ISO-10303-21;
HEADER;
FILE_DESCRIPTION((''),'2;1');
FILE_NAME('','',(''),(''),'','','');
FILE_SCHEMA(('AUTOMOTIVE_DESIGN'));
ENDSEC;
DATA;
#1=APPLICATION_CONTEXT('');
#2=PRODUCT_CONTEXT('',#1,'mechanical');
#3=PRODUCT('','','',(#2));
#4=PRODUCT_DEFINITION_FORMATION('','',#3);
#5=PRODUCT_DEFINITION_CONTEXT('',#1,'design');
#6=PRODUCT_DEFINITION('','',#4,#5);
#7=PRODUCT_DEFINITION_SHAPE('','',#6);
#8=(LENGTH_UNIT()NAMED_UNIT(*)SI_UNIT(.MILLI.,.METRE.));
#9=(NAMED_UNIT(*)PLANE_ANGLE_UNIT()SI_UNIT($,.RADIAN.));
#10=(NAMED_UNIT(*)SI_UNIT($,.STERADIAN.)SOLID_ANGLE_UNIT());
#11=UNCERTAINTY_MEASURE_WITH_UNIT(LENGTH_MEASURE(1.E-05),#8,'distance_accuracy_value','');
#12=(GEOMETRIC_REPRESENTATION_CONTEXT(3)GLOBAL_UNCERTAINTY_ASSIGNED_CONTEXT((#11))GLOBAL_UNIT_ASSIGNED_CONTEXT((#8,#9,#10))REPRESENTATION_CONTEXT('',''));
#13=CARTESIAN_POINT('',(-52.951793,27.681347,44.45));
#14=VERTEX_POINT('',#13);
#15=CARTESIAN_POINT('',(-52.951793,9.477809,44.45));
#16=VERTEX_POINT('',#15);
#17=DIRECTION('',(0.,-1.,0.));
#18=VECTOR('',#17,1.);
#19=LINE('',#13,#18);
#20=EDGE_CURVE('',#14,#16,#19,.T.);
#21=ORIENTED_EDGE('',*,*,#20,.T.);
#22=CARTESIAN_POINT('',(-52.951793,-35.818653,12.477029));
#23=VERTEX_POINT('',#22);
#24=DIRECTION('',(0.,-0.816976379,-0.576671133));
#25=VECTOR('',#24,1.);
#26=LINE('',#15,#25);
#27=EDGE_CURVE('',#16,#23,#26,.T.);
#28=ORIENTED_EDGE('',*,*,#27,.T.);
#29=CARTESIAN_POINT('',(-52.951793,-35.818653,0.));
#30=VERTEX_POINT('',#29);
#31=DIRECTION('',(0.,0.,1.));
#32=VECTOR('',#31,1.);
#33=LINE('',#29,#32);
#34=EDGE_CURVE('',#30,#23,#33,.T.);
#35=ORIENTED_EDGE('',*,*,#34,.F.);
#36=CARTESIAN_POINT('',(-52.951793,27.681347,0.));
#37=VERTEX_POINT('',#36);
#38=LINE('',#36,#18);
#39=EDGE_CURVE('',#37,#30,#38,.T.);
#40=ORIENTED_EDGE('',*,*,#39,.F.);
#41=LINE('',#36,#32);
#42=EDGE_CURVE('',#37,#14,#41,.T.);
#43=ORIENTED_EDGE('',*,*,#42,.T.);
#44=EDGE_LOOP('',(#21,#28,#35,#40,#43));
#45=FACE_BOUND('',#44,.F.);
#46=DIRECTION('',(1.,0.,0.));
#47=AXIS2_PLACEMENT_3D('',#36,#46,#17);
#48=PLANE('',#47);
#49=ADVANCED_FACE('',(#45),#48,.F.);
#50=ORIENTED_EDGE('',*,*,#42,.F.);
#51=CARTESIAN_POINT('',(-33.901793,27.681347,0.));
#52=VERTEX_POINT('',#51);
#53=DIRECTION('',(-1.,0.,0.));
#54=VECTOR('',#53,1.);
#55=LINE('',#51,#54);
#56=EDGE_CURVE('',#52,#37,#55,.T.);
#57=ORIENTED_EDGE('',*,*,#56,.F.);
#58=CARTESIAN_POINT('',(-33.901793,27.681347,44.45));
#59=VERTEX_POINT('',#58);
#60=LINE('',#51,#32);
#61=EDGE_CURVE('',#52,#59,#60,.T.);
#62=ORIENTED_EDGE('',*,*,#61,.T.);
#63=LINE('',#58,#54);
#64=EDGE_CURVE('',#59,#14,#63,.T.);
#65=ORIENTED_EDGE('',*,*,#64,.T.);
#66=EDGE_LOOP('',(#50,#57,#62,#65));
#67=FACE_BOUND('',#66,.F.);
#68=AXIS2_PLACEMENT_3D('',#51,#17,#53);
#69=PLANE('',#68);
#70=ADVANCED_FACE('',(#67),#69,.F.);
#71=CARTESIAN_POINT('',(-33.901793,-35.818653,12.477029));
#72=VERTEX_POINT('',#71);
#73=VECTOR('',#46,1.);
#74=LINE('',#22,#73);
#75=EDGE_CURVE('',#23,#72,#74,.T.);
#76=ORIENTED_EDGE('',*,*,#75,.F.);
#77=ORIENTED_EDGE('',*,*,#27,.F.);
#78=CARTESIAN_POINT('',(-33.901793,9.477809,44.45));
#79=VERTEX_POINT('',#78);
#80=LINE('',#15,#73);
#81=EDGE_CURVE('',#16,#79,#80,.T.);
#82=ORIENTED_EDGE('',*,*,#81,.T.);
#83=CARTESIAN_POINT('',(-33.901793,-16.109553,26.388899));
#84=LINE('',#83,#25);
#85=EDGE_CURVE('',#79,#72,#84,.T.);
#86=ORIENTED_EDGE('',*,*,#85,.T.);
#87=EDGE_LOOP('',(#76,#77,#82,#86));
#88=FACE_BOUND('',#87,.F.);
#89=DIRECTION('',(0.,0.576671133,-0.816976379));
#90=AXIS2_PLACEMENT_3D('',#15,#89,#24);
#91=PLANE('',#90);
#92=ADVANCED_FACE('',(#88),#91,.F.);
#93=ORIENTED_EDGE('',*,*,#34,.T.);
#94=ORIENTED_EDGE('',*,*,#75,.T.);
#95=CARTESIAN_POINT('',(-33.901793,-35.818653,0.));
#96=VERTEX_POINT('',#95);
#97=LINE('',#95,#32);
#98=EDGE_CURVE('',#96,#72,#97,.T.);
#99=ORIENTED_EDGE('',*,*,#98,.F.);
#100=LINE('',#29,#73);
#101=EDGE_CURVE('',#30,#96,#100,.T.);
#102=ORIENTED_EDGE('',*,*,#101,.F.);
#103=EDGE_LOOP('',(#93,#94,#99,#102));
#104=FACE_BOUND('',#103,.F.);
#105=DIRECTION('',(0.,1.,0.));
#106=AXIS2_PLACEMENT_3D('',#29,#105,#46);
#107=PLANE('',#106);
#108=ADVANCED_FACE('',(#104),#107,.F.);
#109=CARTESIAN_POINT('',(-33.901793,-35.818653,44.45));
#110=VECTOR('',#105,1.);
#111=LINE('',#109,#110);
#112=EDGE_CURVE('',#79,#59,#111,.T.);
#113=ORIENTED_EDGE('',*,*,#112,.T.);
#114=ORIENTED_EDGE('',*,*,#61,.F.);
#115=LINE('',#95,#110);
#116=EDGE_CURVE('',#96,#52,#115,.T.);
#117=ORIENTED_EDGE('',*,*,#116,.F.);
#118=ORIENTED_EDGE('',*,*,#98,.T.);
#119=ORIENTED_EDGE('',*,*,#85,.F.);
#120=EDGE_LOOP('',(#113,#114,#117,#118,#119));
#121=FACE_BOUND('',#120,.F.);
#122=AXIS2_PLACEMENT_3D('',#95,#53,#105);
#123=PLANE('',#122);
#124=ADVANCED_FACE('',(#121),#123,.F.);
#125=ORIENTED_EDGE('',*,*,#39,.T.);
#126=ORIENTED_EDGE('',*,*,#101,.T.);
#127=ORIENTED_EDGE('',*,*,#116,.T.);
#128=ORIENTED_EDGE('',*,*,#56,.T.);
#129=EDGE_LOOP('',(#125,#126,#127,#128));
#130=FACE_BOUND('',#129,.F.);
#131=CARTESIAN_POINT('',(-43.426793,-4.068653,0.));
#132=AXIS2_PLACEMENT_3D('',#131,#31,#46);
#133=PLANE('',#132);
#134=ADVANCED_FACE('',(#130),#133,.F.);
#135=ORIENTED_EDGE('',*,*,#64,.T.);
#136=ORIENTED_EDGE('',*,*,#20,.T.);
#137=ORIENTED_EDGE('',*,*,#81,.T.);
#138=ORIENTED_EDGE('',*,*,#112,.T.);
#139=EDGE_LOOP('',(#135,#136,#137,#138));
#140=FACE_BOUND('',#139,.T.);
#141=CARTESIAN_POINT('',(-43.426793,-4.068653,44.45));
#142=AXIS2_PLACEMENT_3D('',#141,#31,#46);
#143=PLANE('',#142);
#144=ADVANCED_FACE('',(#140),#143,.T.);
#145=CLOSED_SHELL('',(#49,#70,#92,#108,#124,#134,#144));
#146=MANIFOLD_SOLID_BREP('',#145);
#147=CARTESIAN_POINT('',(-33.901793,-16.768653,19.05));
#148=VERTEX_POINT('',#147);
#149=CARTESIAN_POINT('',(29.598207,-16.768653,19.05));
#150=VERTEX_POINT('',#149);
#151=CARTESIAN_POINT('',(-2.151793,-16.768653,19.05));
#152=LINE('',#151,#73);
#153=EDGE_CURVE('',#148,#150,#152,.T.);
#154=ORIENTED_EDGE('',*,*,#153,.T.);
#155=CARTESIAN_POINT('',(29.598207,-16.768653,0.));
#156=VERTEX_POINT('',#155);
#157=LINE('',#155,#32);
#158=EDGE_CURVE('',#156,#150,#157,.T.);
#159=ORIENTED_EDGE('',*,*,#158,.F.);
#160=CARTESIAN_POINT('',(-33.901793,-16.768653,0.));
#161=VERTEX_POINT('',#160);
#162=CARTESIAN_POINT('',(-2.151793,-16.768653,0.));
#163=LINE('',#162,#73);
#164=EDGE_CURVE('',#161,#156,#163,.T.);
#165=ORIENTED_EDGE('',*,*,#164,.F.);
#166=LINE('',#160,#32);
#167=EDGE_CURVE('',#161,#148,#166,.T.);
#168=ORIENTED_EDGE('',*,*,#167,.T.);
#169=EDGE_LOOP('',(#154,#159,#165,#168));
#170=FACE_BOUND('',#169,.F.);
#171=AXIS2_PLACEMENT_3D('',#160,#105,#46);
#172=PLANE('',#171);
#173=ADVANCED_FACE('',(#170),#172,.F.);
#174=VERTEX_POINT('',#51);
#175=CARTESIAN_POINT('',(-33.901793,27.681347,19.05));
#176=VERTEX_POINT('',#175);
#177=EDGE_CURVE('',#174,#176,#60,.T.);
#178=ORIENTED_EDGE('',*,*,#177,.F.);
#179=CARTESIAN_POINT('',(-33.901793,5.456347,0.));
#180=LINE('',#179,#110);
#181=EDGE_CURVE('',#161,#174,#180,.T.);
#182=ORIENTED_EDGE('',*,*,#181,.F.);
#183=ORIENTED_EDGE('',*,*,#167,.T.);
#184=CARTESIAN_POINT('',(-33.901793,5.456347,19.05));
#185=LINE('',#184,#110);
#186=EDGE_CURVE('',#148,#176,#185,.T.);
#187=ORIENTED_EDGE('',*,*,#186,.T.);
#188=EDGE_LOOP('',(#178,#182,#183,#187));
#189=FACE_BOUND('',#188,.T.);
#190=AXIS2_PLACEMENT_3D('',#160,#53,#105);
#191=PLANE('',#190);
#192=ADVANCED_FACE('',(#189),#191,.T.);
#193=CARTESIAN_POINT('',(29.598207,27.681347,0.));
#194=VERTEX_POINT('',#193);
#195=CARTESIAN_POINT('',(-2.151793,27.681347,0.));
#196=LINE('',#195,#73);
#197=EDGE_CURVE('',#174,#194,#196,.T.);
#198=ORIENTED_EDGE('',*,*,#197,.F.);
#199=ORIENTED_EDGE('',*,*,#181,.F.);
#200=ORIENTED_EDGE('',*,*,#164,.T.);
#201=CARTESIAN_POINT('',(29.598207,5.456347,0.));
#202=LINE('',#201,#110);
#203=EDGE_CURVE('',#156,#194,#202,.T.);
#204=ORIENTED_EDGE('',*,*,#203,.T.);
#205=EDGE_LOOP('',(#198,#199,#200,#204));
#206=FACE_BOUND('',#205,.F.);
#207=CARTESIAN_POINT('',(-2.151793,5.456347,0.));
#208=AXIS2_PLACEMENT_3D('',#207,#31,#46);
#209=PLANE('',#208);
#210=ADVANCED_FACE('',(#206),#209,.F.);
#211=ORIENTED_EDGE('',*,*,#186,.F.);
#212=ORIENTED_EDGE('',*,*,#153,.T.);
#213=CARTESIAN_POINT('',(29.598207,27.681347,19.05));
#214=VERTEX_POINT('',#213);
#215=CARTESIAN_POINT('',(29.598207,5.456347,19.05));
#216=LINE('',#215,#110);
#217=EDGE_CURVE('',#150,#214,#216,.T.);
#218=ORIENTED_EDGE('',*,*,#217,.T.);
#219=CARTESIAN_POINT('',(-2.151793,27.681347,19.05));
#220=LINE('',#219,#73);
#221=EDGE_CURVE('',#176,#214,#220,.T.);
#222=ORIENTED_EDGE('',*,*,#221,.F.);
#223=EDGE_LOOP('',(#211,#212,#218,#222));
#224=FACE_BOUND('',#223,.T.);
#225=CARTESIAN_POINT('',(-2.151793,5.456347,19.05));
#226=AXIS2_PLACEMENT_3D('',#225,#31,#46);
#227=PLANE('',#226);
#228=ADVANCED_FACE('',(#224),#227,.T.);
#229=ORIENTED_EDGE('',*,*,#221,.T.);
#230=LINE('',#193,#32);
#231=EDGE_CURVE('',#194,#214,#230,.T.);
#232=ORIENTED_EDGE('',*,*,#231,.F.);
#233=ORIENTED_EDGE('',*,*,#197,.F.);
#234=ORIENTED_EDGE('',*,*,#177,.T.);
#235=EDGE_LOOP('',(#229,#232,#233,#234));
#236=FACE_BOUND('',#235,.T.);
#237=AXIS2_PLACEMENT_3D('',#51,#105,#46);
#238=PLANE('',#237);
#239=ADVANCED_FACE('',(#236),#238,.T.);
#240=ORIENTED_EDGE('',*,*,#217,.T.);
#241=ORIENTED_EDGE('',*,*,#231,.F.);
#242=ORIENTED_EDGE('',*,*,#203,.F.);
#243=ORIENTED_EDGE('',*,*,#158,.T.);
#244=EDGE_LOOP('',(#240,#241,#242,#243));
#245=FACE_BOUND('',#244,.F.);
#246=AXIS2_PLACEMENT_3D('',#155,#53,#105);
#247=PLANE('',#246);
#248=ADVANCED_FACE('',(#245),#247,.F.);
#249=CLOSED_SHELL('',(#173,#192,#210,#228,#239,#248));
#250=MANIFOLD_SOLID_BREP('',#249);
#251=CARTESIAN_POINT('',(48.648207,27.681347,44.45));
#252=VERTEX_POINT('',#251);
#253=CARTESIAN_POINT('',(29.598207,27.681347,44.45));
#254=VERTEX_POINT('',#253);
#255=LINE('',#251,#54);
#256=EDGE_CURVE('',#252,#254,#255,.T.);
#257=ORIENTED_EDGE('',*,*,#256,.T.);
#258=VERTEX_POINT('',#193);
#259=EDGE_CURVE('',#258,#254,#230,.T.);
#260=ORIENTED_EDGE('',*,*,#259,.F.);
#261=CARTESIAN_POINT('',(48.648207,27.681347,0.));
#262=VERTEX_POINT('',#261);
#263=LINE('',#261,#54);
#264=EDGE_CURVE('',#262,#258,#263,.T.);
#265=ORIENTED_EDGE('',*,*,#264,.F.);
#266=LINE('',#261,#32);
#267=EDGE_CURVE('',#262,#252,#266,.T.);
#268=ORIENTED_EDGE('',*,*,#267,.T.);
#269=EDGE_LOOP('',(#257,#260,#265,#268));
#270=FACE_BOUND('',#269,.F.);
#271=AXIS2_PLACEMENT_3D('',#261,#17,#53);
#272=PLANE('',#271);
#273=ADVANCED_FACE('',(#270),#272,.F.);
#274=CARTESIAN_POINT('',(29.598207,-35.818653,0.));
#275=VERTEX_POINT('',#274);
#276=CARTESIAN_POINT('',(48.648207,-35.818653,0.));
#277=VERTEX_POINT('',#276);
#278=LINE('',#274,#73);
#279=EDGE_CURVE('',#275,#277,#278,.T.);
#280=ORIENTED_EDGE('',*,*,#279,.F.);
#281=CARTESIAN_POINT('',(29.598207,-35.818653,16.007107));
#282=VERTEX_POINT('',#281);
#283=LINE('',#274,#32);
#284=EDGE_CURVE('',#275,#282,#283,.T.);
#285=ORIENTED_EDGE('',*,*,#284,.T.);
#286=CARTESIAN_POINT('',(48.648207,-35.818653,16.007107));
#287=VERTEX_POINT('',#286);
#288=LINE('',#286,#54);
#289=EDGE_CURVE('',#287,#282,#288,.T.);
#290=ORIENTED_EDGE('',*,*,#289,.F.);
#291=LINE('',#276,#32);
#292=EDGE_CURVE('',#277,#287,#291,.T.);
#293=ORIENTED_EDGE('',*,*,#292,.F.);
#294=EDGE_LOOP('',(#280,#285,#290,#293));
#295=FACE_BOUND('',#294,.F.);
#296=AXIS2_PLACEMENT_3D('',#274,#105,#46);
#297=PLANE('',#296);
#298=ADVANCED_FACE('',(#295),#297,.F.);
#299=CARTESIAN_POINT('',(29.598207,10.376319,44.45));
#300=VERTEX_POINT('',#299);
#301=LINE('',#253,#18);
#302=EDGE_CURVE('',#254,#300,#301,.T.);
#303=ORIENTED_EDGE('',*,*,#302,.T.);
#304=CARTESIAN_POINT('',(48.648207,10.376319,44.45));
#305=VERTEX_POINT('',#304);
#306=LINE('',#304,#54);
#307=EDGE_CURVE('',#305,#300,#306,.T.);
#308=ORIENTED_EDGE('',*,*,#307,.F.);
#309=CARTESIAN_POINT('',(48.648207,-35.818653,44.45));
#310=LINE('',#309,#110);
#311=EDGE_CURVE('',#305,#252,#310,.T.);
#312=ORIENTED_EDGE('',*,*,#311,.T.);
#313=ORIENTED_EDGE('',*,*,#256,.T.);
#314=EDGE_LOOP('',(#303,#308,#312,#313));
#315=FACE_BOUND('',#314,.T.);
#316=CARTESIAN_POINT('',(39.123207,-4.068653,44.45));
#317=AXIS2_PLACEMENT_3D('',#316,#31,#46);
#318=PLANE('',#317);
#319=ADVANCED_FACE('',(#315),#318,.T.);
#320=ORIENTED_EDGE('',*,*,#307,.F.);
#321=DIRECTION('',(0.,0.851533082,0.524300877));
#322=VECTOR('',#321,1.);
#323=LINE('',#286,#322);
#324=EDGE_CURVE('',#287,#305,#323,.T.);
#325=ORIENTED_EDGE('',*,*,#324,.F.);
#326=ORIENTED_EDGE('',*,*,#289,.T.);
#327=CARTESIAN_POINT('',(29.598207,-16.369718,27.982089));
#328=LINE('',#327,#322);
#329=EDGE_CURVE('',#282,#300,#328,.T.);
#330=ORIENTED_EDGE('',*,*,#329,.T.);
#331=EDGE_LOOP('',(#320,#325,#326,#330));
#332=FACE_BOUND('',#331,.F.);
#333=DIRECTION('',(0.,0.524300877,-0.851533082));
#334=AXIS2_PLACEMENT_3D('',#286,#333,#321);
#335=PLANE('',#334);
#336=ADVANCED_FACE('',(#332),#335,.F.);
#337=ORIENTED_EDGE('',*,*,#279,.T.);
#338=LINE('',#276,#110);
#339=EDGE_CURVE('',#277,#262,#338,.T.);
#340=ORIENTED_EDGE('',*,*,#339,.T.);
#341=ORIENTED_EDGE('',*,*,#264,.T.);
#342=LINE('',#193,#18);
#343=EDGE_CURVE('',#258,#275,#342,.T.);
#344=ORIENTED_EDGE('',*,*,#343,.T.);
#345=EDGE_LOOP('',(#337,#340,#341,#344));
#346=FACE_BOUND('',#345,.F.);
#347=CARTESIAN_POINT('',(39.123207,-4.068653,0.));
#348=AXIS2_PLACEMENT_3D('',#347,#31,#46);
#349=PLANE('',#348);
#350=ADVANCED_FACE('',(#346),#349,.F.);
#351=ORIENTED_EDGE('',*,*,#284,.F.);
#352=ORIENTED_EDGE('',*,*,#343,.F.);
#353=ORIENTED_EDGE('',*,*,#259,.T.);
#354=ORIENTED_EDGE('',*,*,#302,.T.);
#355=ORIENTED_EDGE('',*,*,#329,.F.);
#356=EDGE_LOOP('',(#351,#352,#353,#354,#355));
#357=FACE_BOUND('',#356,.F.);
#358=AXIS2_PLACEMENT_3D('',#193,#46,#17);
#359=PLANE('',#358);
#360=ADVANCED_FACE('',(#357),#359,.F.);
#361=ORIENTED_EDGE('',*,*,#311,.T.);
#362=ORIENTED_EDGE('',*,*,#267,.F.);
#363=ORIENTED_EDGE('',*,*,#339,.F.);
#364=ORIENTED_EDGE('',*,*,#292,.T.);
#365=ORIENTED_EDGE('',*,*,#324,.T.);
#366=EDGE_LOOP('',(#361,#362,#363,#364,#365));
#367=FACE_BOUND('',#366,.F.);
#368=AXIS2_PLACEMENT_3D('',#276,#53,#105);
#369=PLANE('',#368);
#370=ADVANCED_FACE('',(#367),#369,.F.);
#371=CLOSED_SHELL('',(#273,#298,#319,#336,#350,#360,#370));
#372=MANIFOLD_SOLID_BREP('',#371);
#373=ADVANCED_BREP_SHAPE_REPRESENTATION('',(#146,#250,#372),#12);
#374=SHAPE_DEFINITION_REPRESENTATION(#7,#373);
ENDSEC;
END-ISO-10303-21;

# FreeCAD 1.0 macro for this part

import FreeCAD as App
import Part
import Sketcher
from FreeCAD import Vector
Q = App.Units.Quantity

doc = App.newDocument("Part")
body = doc.addObject("PartDesign::Body", "Body")
body.AllowCompound = True

sketch1 = body.newObject("Sketcher::SketchObject", "Sketch")
sketch1.AttachmentSupport = (doc.getObject("XY_Plane"), [""])
sketch1.MapMode = "FlatFace"
sketch1.addGeometry([
    Part.LineSegment(Vector(49, 28, 0), Vector(30, 28, 0)),
    Part.LineSegment(Vector(30, 28, 0), Vector(30, -36, 0)),
    Part.LineSegment(Vector(30, -36, 0), Vector(49, -36, 0)),
    Part.LineSegment(Vector(49, -36, 0), Vector(49, 28, 0)),
    Part.LineSegment(Vector(-34, 28, 0), Vector(-53, 28, 0)),
    Part.LineSegment(Vector(-53, 28, 0), Vector(-53, -36, 0)),
    Part.LineSegment(Vector(-53, -36, 0), Vector(-34, -36, 0)),
    Part.LineSegment(Vector(-34, -36, 0), Vector(-34, 28, 0)),
], False)
sketch1.addConstraint([
    Sketcher.Constraint("Coincident", 0, 2, 1, 1),
    Sketcher.Constraint("Coincident", 1, 2, 2, 1),
    Sketcher.Constraint("Coincident", 2, 2, 3, 1),
    Sketcher.Constraint("Coincident", 3, 2, 0, 1),
    Sketcher.Constraint("Coincident", 4, 2, 5, 1),
    Sketcher.Constraint("Coincident", 5, 2, 6, 1),
    Sketcher.Constraint("Coincident", 6, 2, 7, 1),
    Sketcher.Constraint("Coincident", 7, 2, 4, 1),
    Sketcher.Constraint("Horizontal", 0),
    Sketcher.Constraint("Vertical", 1),
    Sketcher.Constraint("Horizontal", 2),
    Sketcher.Constraint("Vertical", 3),
    Sketcher.Constraint("Horizontal", 4),
    Sketcher.Constraint("Vertical", 5),
    Sketcher.Constraint("Horizontal", 6),
    Sketcher.Constraint("Vertical", 7),
    Sketcher.Constraint("Horizontal", 3, 2, 4, 2),
    Sketcher.Constraint("Horizontal", 2, 2, 5, 2),
    Sketcher.Constraint("Equal", 2, 4),
    Sketcher.Constraint("DistanceY", 1, 2, 1, 1, Q("2.5 in")),
    Sketcher.Constraint("DistanceX", 4, 2, 3, 2, Q("4 in")),
    Sketcher.Constraint("DistanceX", 0, 2, 0, 1, Q("0.75 in")),
    Sketcher.Constraint("DistanceX", -1, 1, 0, 2, 29.598207),
    Sketcher.Constraint("DistanceY", -1, 1, 0, 2, 27.681347),
])
pad1 = body.newObject("PartDesign::Pad", "Pad")
pad1.Profile = sketch1
pad1.Length = Q("1.75 in")

sketch2 = body.newObject("Sketcher::SketchObject", "Sketch001")
sketch2.AttachmentSupport = (doc.getObject("YZ_Plane"), [""])
sketch2.MapMode = "FlatFace"
sketch2.AttachmentOffset = App.Placement(Vector(0, 0, -52.951793), App.Rotation())
sketch2.addGeometry([
    Part.LineSegment(Vector(9, 44, 0), Vector(-36, 12, 0)),
    Part.LineSegment(Vector(-36, 12, 0), Vector(-36, 44, 0)),
    Part.LineSegment(Vector(-36, 44, 0), Vector(9, 44, 0)),
], False)
sketch2.addConstraint([
    Sketcher.Constraint("Coincident", 0, 2, 1, 1),
    Sketcher.Constraint("Coincident", 1, 2, 2, 1),
    Sketcher.Constraint("Coincident", 2, 2, 0, 1),
    Sketcher.Constraint("Vertical", 1),
    Sketcher.Constraint("Horizontal", 2),
    Sketcher.Constraint("DistanceY", -1, 1, 1, 2, Q("1.75 in")),
    Sketcher.Constraint("DistanceX", 2, 1, 2, 2, 45.296462),
    Sketcher.Constraint("DistanceY", 1, 1, 1, 2, 31.972971),
    Sketcher.Constraint("DistanceX", -1, 1, 2, 2, 9.477809),
])
pocket1 = body.newObject("PartDesign::Pocket", "Pocket")
pocket1.Profile = sketch2
pocket1.Length = Q("1 in")
pocket1.Reversed = True

sketch3 = body.newObject("Sketcher::SketchObject", "Sketch002")
sketch3.AttachmentSupport = (doc.getObject("YZ_Plane"), [""])
sketch3.MapMode = "FlatFace"
sketch3.AttachmentOffset = App.Placement(Vector(0, 0, 48.648207), App.Rotation())
sketch3.addGeometry([
    Part.LineSegment(Vector(-36, 44, 0), Vector(-36, 16, 0)),
    Part.LineSegment(Vector(-36, 16, 0), Vector(10, 44, 0)),
    Part.LineSegment(Vector(10, 44, 0), Vector(-36, 44, 0)),
], False)
sketch3.addConstraint([
    Sketcher.Constraint("Coincident", 0, 2, 1, 1),
    Sketcher.Constraint("Coincident", 1, 2, 2, 1),
    Sketcher.Constraint("Coincident", 2, 2, 0, 1),
    Sketcher.Constraint("Vertical", 0),
    Sketcher.Constraint("Horizontal", 2),
    Sketcher.Constraint("DistanceY", -1, 1, 1, 2, Q("1.75 in")),
    Sketcher.Constraint("Distance", 1, 54.249181),
    Sketcher.Constraint("DistanceX", 2, 2, 2, 1, 46.194972),
    Sketcher.Constraint("DistanceX", -1, 1, 1, 2, 10.376319),
])
pocket2 = body.newObject("PartDesign::Pocket", "Pocket001")
pocket2.Profile = sketch3
pocket2.Length = Q("1 in")
body2 = doc.addObject("PartDesign::Body", "Body001")

sketch4 = body2.newObject("Sketcher::SketchObject", "Sketch003")
sketch4.AttachmentSupport = (doc.getObject("XY_Plane001"), [""])
sketch4.MapMode = "FlatFace"
sketch4.addGeometry([
    Part.LineSegment(Vector(-34, 28, 0), Vector(-34, -17, 0)),
    Part.LineSegment(Vector(-34, -17, 0), Vector(30, -17, 0)),
    Part.LineSegment(Vector(30, -17, 0), Vector(30, 28, 0)),
    Part.LineSegment(Vector(30, 28, 0), Vector(-34, 28, 0)),
], False)
sketch4.addConstraint([
    Sketcher.Constraint("Coincident", 0, 2, 1, 1),
    Sketcher.Constraint("Coincident", 1, 2, 2, 1),
    Sketcher.Constraint("Coincident", 2, 2, 3, 1),
    Sketcher.Constraint("Coincident", 3, 2, 0, 1),
    Sketcher.Constraint("Vertical", 0),
    Sketcher.Constraint("Horizontal", 1),
    Sketcher.Constraint("Vertical", 2),
    Sketcher.Constraint("Horizontal", 3),
    Sketcher.Constraint("DistanceX", 1, 1, 1, 2, Q("2.5 in")),
    Sketcher.Constraint("DistanceY", 0, 2, 0, 1, Q("1.75 in")),
    Sketcher.Constraint("DistanceX", 0, 2, -1, 1, 33.901793),
    Sketcher.Constraint("DistanceY", 0, 2, -1, 1, 16.768653),
])
pad2 = body2.newObject("PartDesign::Pad", "Pad001")
pad2.Profile = sketch4
pad2.Length = Q("0.75 in")

doc.recompute()
